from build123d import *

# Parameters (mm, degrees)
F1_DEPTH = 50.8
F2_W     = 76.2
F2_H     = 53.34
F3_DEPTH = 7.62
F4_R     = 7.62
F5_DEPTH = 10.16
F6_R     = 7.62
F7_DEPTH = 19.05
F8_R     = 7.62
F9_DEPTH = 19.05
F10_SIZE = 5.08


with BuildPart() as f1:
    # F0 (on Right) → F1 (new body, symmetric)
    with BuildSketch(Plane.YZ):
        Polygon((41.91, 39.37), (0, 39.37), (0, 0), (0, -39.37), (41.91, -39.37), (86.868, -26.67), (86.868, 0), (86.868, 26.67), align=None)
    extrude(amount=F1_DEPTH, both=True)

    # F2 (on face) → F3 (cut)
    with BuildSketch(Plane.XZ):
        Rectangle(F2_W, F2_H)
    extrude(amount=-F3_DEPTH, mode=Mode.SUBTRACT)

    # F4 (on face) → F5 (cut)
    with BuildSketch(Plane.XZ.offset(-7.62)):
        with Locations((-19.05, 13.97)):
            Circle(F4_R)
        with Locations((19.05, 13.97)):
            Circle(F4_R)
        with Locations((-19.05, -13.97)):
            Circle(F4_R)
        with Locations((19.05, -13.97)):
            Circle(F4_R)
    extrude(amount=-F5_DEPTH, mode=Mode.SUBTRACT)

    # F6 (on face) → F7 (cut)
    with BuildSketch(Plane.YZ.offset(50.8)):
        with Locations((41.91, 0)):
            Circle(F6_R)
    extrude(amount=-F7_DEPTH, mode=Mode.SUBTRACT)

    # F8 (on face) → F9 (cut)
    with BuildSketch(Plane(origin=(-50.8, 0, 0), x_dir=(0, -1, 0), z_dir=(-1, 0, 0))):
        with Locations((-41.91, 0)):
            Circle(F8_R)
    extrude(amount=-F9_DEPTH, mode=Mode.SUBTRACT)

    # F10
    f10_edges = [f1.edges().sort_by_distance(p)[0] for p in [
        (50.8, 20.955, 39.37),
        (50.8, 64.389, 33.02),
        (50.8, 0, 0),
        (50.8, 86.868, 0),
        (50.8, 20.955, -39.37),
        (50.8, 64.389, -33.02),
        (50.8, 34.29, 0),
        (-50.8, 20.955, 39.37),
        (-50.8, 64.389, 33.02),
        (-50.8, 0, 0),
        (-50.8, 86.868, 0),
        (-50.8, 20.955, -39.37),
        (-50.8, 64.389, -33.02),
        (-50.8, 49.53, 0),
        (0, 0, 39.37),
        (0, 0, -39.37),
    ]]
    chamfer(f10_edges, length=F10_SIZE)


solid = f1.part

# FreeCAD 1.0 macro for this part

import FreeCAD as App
import Part
import Sketcher

V = App.Vector
Q = App.Units.Quantity


def edges_at(feature, points):
    """Names of the edges that pass closest to the given points."""
    edges = feature.Shape.Edges
    near = lambda p: min(range(len(edges)), key=lambda i: edges[i].distToShape(Part.Vertex(*p))[0])
    return sorted({f"Edge{near(p) + 1}" for p in points})

doc = App.newDocument("Part")
body = doc.addObject("PartDesign::Body", "Body")

sketch1 = doc.addObject("Sketcher::SketchObject", "Sketch")
body.addObject(sketch1)
sketch1.AttachmentSupport = (doc.YZ_Plane, [""])
sketch1.MapMode = "FlatFace"
sketch1.addGeometry([
    Part.LineSegment(V(41.91, 39.37, 0), V(0, 39.37, 0)),
    Part.LineSegment(V(0, 39.37, 0), V(0, -39.37, 0)),
    Part.LineSegment(V(0, -39.37, 0), V(41.91, -39.37, 0)),
    Part.LineSegment(V(41.91, -39.37, 0), V(86.868, -26.67, 0)),
    Part.LineSegment(V(86.868, -26.67, 0), V(86.868, 26.67, 0)),
    Part.LineSegment(V(86.868, 26.67, 0), V(41.91, 39.37, 0)),
], False)
sketch1.addConstraint([
    Sketcher.Constraint("Coincident", 0, 2, 1, 1),
    Sketcher.Constraint("Coincident", 1, 2, 2, 1),
    Sketcher.Constraint("Coincident", 2, 2, 3, 1),
    Sketcher.Constraint("Coincident", 3, 2, 4, 1),
    Sketcher.Constraint("Coincident", 4, 2, 5, 1),
    Sketcher.Constraint("Coincident", 5, 2, 0, 1),
    Sketcher.Constraint("Horizontal", 0),
    Sketcher.Constraint("Vertical", 1),
    Sketcher.Constraint("Horizontal", 2),
    Sketcher.Constraint("Vertical", 4),
    Sketcher.Constraint("Symmetric", 0, 2, 1, 2, -1, 1),
    Sketcher.Constraint("Vertical", 2, 2, 5, 2),
    Sketcher.Constraint("Equal", 3, 5),
    Sketcher.Constraint("DistanceY", 1, 2, 1, 1, Q("3.1 in")),
    Sketcher.Constraint("DistanceY", 4, 1, 4, 2, Q("2.1 in")),
    Sketcher.Constraint("DistanceX", 0, 2, 0, 1, Q("1.65 in")),
    Sketcher.Constraint("DistanceX", -1, 1, 3, 2, Q("3.42 in")),
])
pad1 = doc.addObject("PartDesign::Pad", "Pad")
body.addObject(pad1)
pad1.Profile = sketch1
pad1.Length = Q("4 in")
pad1.Midplane = True

sketch2 = doc.addObject("Sketcher::SketchObject", "Sketch001")
body.addObject(sketch2)
sketch2.AttachmentSupport = (doc.XZ_Plane, [""])
sketch2.MapMode = "FlatFace"
sketch2.addGeometry([
    Part.LineSegment(V(-38.1, 26.67, 0), V(-38.1, -26.67, 0)),
    Part.LineSegment(V(-38.1, -26.67, 0), V(38.1, -26.67, 0)),
    Part.LineSegment(V(38.1, -26.67, 0), V(38.1, 26.67, 0)),
    Part.LineSegment(V(38.1, 26.67, 0), V(-38.1, 26.67, 0)),
], False)
sketch2.addConstraint([
    Sketcher.Constraint("Coincident", 0, 2, 1, 1),
    Sketcher.Constraint("Coincident", 1, 2, 2, 1),
    Sketcher.Constraint("Coincident", 2, 2, 3, 1),
    Sketcher.Constraint("Coincident", 3, 2, 0, 1),
    Sketcher.Constraint("Vertical", 0),
    Sketcher.Constraint("Horizontal", 1),
    Sketcher.Constraint("Vertical", 2),
    Sketcher.Constraint("Horizontal", 3),
    Sketcher.Constraint("Symmetric", 0, 2, 2, 2, -1, 1),
    Sketcher.Constraint("DistanceX", 1, 1, 1, 2, Q("3 in")),
    Sketcher.Constraint("DistanceY", 0, 2, 0, 1, Q("2.1 in")),
])
pocket1 = doc.addObject("PartDesign::Pocket", "Pocket")
body.addObject(pocket1)
pocket1.Profile = sketch2
pocket1.Length = Q("0.3 in")

sketch3 = doc.addObject("Sketcher::SketchObject", "Sketch002")
body.addObject(sketch3)
sketch3.AttachmentSupport = (doc.XZ_Plane, [""])
sketch3.MapMode = "FlatFace"
sketch3.AttachmentOffset = App.Placement(V(0, 0, -0.3 * 25.4), App.Rotation())
sketch3.addGeometry([
    Part.Circle(V(-19.05, 13.97, 0), V(0, 0, 1), 7.62),
    Part.Circle(V(19.05, 13.97, 0), V(0, 0, 1), 7.62),
    Part.Circle(V(-19.05, -13.97, 0), V(0, 0, 1), 7.62),
    Part.Circle(V(19.05, -13.97, 0), V(0, 0, 1), 7.62),
], False)
sketch3.addConstraint([
    Sketcher.Constraint("Equal", 0, 1),
    Sketcher.Constraint("Equal", 1, 2),
    Sketcher.Constraint("Equal", 2, 3),
    Sketcher.Constraint("Symmetric", 1, 3, 2, 3, -1, 1),
    Sketcher.Constraint("Symmetric", 0, 3, 3, 3, -1, 1),
    Sketcher.Constraint("Symmetric", 0, 3, 1, 3, -2),
    Sketcher.Constraint("Diameter", 0, Q("0.6 in")),
    Sketcher.Constraint("DistanceX", 0, 3, 1, 3, Q("1.5 in")),
    Sketcher.Constraint("DistanceY", 2, 3, 0, 3, Q("1.1 in")),
])
pocket2 = doc.addObject("PartDesign::Pocket", "Pocket001")
body.addObject(pocket2)
pocket2.Profile = sketch3
pocket2.Length = Q("0.4 in")

sketch4 = doc.addObject("Sketcher::SketchObject", "Sketch003")
body.addObject(sketch4)
sketch4.AttachmentSupport = (doc.YZ_Plane, [""])
sketch4.MapMode = "FlatFace"
sketch4.AttachmentOffset = App.Placement(V(0, 0, 2 * 25.4), App.Rotation())
sketch4.addGeometry(Part.Circle(V(41.91, 0, 0), V(0, 0, 1), 7.62), False)
sketch4.addConstraint([
    Sketcher.Constraint("PointOnObject", 0, 3, -1),
    Sketcher.Constraint("Diameter", 0, Q("0.6 in")),
    Sketcher.Constraint("DistanceX", -1, 1, 0, 3, Q("1.65 in")),
])
pocket3 = doc.addObject("PartDesign::Pocket", "Pocket002")
body.addObject(pocket3)
pocket3.Profile = sketch4
pocket3.Length = Q("0.75 in")

sketch5 = doc.addObject("Sketcher::SketchObject", "Sketch004")
body.addObject(sketch5)
sketch5.AttachmentSupport = (doc.YZ_Plane, [""])
sketch5.MapMode = "FlatFace"
sketch5.AttachmentOffset = App.Placement(V(0, 0, -2 * 25.4), App.Rotation())
sketch5.addGeometry(Part.Circle(V(41.91, 0, 0), V(0, 0, 1), 7.62), False)
sketch5.addConstraint([
    Sketcher.Constraint("PointOnObject", 0, 3, -1),
    Sketcher.Constraint("Diameter", 0, Q("0.6 in")),
    Sketcher.Constraint("DistanceX", -1, 1, 0, 3, Q("1.65 in")),
])
pocket4 = doc.addObject("PartDesign::Pocket", "Pocket003")
body.addObject(pocket4)
pocket4.Profile = sketch5
pocket4.Length = Q("0.75 in")
pocket4.Reversed = True
doc.recompute()

chamfer = doc.addObject("PartDesign::Chamfer", "Chamfer")
body.addObject(chamfer)
chamfer.Base = (pocket4, edges_at(pocket4, [
    (50.8, 20.955, 39.37),
    (50.8, 64.389, 33.02),
    (50.8, 0, 0),
    (50.8, 86.868, 0),
    (50.8, 20.955, -39.37),
    (50.8, 64.389, -33.02),
    (50.8, 34.29, 0),
    (-50.8, 20.955, 39.37),
    (-50.8, 64.389, 33.02),
    (-50.8, 0, 0),
    (-50.8, 86.868, 0),
    (-50.8, 20.955, -39.37),
    (-50.8, 64.389, -33.02),
    (-50.8, 49.53, 0),
    (0, 0, 39.37),
    (0, 0, -39.37),
]))
chamfer.Size = Q("0.2 in")

doc.recompute()
